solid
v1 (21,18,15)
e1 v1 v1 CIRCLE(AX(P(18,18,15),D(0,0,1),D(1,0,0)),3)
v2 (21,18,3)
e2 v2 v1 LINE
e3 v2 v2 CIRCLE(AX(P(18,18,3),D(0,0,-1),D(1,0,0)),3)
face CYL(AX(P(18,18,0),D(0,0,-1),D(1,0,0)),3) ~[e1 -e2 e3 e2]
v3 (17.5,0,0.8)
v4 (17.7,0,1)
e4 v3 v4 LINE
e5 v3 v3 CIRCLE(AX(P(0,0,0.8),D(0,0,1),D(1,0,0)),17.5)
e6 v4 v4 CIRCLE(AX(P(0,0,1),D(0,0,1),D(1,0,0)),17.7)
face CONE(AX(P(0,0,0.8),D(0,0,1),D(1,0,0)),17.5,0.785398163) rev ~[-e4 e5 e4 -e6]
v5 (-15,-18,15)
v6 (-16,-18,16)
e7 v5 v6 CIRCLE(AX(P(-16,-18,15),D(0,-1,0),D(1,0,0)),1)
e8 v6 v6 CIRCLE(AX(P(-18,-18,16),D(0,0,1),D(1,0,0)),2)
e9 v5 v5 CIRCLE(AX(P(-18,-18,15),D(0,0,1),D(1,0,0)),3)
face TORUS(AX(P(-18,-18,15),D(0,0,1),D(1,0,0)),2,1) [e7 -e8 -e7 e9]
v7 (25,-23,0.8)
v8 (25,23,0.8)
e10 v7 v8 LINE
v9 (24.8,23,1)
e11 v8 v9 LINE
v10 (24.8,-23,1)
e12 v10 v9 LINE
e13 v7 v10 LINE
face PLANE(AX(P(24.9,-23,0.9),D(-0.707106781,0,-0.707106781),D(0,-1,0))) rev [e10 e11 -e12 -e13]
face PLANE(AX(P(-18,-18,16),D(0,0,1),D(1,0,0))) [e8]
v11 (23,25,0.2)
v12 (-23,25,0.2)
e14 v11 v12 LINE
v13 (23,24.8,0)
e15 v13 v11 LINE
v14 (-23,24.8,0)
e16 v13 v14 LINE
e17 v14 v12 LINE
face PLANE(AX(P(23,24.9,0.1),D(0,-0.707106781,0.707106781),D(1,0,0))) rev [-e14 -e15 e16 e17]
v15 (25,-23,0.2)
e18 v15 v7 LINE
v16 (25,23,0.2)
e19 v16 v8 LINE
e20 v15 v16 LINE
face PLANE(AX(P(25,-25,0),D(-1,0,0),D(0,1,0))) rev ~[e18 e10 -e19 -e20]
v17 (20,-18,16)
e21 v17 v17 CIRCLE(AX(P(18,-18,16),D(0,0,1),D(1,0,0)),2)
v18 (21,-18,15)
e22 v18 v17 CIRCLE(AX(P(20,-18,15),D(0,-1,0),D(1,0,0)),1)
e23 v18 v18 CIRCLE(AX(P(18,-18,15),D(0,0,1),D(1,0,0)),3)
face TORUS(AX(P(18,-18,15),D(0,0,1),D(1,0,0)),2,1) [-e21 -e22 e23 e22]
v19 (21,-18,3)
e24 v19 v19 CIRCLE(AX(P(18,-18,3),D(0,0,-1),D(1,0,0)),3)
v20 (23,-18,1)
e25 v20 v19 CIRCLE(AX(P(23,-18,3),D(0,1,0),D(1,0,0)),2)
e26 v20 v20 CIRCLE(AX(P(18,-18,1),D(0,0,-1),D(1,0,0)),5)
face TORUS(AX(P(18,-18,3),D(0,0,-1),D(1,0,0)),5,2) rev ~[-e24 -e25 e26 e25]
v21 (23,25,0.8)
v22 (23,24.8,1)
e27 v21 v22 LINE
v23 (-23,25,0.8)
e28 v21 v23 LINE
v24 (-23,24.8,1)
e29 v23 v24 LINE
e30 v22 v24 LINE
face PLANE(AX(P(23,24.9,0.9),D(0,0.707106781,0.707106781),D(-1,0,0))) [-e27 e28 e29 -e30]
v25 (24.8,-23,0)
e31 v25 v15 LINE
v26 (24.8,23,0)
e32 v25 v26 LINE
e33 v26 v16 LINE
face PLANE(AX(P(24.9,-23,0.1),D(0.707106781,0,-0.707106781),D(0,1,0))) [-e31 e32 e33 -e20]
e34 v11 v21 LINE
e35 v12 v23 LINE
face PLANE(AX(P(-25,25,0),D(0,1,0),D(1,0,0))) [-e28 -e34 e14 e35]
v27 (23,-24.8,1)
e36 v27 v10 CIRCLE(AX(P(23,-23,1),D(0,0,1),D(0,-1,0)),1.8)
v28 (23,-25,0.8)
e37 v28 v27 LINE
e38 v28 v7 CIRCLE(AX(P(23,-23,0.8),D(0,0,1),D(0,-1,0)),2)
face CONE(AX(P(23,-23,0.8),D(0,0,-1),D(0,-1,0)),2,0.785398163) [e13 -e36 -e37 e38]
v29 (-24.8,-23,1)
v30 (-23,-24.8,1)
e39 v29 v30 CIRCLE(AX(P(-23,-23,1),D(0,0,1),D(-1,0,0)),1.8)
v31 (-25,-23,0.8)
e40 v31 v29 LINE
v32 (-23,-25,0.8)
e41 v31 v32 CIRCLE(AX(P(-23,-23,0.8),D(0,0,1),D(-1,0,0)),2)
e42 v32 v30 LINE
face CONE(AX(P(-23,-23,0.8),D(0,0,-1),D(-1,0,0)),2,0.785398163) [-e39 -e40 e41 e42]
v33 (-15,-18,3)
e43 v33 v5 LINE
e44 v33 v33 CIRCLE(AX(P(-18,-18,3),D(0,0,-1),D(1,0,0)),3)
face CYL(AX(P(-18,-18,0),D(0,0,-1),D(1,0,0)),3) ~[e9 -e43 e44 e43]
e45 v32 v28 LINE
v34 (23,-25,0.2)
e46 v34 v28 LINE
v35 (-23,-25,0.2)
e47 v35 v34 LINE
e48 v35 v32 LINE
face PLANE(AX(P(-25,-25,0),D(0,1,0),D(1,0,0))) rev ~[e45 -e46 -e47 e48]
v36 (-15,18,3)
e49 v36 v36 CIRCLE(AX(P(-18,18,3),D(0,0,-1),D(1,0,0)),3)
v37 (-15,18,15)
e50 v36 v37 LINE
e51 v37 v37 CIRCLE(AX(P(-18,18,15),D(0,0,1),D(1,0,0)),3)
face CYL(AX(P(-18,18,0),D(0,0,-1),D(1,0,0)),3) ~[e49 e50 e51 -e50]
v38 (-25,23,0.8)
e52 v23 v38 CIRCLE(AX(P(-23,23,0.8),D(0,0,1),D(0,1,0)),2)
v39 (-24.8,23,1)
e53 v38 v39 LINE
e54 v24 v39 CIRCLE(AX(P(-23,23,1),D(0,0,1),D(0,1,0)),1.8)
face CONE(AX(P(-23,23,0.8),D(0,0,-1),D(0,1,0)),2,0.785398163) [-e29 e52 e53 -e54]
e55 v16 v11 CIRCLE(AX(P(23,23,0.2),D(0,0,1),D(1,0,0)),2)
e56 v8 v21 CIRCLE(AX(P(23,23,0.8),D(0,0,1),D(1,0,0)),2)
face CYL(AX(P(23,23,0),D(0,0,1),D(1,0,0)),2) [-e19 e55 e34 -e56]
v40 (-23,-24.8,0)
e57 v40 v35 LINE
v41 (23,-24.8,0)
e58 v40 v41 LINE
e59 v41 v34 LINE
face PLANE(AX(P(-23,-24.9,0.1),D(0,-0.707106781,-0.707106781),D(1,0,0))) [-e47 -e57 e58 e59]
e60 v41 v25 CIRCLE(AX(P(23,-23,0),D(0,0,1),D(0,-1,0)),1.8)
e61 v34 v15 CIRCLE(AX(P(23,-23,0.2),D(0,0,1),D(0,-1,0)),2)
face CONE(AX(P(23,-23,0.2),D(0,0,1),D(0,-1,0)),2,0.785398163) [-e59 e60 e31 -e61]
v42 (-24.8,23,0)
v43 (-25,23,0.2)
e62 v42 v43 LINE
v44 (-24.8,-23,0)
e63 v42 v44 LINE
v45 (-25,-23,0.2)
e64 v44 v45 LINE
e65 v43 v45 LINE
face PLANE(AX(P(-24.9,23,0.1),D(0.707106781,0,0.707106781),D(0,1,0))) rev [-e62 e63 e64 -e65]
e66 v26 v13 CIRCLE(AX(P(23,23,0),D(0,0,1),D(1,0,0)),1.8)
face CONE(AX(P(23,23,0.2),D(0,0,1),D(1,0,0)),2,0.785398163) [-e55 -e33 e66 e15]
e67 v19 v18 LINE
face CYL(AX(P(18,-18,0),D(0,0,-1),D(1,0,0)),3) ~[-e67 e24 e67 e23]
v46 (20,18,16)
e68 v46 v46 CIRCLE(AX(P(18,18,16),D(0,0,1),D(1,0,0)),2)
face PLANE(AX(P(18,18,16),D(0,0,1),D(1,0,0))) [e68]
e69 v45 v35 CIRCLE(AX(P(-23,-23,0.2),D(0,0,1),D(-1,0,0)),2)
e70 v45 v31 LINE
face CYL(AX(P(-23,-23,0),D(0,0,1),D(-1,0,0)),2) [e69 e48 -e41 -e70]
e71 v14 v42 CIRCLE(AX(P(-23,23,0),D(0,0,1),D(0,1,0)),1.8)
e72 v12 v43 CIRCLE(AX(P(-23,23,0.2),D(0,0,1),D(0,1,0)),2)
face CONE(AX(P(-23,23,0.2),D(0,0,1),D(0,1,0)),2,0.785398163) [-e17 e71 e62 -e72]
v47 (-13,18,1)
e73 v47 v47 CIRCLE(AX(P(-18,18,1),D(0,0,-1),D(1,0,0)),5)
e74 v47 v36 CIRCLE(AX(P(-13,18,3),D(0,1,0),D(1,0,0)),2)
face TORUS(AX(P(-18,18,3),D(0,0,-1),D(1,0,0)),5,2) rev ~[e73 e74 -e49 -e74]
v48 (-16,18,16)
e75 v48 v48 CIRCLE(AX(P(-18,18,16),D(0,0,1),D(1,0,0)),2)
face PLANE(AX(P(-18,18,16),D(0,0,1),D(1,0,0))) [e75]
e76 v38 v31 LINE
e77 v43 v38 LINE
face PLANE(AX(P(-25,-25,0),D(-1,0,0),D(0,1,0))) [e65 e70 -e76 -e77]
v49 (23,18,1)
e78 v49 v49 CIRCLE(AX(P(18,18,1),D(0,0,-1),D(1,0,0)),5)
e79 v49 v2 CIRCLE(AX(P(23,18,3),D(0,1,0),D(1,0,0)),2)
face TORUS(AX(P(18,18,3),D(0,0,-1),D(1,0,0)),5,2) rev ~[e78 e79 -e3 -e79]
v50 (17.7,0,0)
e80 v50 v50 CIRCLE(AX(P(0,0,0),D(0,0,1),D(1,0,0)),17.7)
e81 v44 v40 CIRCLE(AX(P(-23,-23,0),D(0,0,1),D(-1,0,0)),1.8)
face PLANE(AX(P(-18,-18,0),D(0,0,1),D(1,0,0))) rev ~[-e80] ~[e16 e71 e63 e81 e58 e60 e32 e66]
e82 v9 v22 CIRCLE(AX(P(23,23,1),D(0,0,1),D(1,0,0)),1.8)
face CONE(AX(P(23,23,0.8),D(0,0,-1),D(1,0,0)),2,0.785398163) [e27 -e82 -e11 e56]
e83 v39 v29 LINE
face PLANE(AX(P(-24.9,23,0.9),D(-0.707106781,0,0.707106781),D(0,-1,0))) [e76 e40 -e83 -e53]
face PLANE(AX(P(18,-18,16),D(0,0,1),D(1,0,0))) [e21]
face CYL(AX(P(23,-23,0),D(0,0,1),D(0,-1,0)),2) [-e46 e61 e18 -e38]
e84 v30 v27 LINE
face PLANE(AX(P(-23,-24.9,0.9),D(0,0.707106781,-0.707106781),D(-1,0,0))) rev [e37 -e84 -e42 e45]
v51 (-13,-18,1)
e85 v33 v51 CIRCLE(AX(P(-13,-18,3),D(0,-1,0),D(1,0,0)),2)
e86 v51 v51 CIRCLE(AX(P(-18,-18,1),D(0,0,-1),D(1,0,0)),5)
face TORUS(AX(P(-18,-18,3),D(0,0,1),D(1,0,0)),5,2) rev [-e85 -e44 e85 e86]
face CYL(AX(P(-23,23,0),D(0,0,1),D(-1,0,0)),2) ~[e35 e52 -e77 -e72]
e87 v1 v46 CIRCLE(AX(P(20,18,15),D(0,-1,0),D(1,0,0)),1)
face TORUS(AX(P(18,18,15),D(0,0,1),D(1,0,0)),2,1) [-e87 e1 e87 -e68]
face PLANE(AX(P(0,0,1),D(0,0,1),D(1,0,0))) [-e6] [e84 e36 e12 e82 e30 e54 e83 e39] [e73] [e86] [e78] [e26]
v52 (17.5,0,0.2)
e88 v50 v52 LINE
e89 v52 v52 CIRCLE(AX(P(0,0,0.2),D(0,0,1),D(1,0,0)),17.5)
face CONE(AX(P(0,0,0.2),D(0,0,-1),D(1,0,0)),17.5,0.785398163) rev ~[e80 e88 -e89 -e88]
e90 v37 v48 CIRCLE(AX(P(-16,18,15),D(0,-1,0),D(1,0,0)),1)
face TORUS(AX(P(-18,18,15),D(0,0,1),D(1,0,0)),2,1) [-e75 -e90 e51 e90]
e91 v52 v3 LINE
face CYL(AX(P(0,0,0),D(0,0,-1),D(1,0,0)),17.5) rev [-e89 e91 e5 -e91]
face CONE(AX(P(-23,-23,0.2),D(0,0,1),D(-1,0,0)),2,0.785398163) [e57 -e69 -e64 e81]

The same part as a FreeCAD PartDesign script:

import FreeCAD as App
import Part
import Sketcher
from FreeCAD import Vector
Q = App.Units.Quantity


def edges_at(feature, points):
    """Names of the edges that pass closest to the given points."""
    edges = feature.Shape.Edges
    near = lambda p: min(range(len(edges)), key=lambda i: edges[i].distToShape(Part.Vertex(*p))[0])
    return sorted({f"Edge{near(p) + 1}" for p in points})

doc = App.newDocument("Part")
params = doc.addObject("Spreadsheet::Sheet", "Params")
for row, (alias, value) in enumerate([
    ("sketch1_diameter", "35 mm"),
    ("sketch1_width", "50 mm"),
    ("pad1_length", "1 mm"),
    ("fillet_radius", "2 mm"),
    ("sketch2_diameter", "6 mm"),
    ("pad2_length", "16 mm"),
    ("chamfer_size", "0.2 mm"),
    ("fillet2_radius", "1 mm"),
    ("fillet3_radius", "2 mm"),
], start=1):
    params.set(f"A{row}", alias)
    params.set(f"B{row}", "=" + value)
    params.setAlias(f"B{row}", alias)

body = doc.addObject("PartDesign::Body", "Body")

# Sketch on XY plane
sketch1 = body.newObject("Sketcher::SketchObject", "Sketch")
sketch1.AttachmentSupport = (doc.getObject("XY_Plane"), [""])
sketch1.MapMode = "FlatFace"
sketch1.addGeometry([
    Part.LineSegment(Vector(-25, 25, 0), Vector(-25, -25, 0)),  # 0
    Part.LineSegment(Vector(-25, -25, 0), Vector(25, -25, 0)),  # 1
    Part.LineSegment(Vector(25, -25, 0), Vector(25, 25, 0)),  # 2
    Part.LineSegment(Vector(25, 25, 0), Vector(-25, 25, 0)),  # 3
    Part.Circle(Vector(0, 0, 0), Vector(0, 0, 1), 17.5),  # 4
], False)
sketch1.addConstraint([
    Sketcher.Constraint("Coincident", 0, 2, 1, 1),
    Sketcher.Constraint("Coincident", 1, 2, 2, 1),
    Sketcher.Constraint("Coincident", 2, 2, 3, 1),
    Sketcher.Constraint("Coincident", 3, 2, 0, 1),
    Sketcher.Constraint("Vertical", 0),
    Sketcher.Constraint("Horizontal", 1),
    Sketcher.Constraint("Vertical", 2),
    Sketcher.Constraint("Horizontal", 3),
    Sketcher.Constraint("Coincident", 4, 3, -1, 1),
    Sketcher.Constraint("Symmetric", 0, 2, 2, 2, -1, 1),
    Sketcher.Constraint("Equal", 3, 0),
    Sketcher.Constraint("Diameter", 4, Q("35 mm")),
    Sketcher.Constraint("DistanceX", 1, 1, 1, 2, Q("50 mm")),
])
sketch1.setExpression("Constraints[11]", "Params.sketch1_diameter")
sketch1.setExpression("Constraints[12]", "Params.sketch1_width")
pad1 = body.newObject("PartDesign::Pad", "Pad")
pad1.Profile = sketch1
pad1.setExpression("Length", "Params.pad1_length")
doc.recompute()

fillet = body.newObject("PartDesign::Fillet", "Fillet")
fillet.Base = (pad1, edges_at(pad1, [
    (-25, -25, 0.5),
    (25, -25, 0.5),
    (25, 25, 0.5),
    (-25, 25, 0.5),
]))
fillet.setExpression("Radius", "Params.fillet_radius")

# Sketch on XY plane
sketch2 = body.newObject("Sketcher::SketchObject", "Sketch001")
sketch2.AttachmentSupport = (doc.getObject("XY_Plane"), [""])
sketch2.MapMode = "FlatFace"
sketch2.addGeometry([
    Part.Circle(Vector(-18, -18, 0), Vector(0, 0, 1), 3),
    Part.Circle(Vector(-18, 18, 0), Vector(0, 0, 1), 3),
    Part.Circle(Vector(18, 18, 0), Vector(0, 0, 1), 3),
    Part.Circle(Vector(18, -18, 0), Vector(0, 0, 1), 3),
], False)
sketch2.addConstraint([
    Sketcher.Constraint("Equal", 0, 1),
    Sketcher.Constraint("Equal", 1, 2),
    Sketcher.Constraint("Equal", 2, 3),
    Sketcher.Constraint("Symmetric", 0, 3, 2, 3, -1, 1),
    Sketcher.Constraint("Symmetric", 1, 3, 3, 3, -1, 1),
    Sketcher.Constraint("Symmetric", 1, 3, 2, 3, -2),
    Sketcher.Constraint("Diameter", 0, Q("6 mm")),
    Sketcher.Constraint("DistanceX", 0, 3, -1, 1, Q("18 mm")),
    Sketcher.Constraint("DistanceY", 0, 3, -1, 1, Q("18 mm")),
])
sketch2.setExpression("Constraints[6]", "Params.sketch2_diameter")
pad2 = body.newObject("PartDesign::Pad", "Pad001")
pad2.Profile = sketch2
pad2.setExpression("Length", "Params.pad2_length")
doc.recompute()

chamfer = body.newObject("PartDesign::Chamfer", "Chamfer")
chamfer.Base = (pad2, edges_at(pad2, [
    (25, 0, 0),
    (24.414, 24.414, 0),
    (0, 25, 0),
    (-24.414, 24.414, 0),
    (-25, 0, 0),
    (-24.414, -24.414, 0),
    (0, -25, 0),
    (24.414, -24.414, 0),
    (-17.5, 0, 0),
    (-17.5, 0, 1),
    (25, 0, 1),
]))
chamfer.setExpression("Size", "Params.chamfer_size")
doc.recompute()

fillet2 = body.newObject("PartDesign::Fillet", "Fillet001")
fillet2.Base = (chamfer, edges_at(chamfer, [
    (15, -18, 16),
    (-21, -18, 16),
    (-21, 18, 16),
    (15, 18, 16),
]))
fillet2.setExpression("Radius", "Params.fillet2_radius")
doc.recompute()

fillet3 = body.newObject("PartDesign::Fillet", "Fillet002")
fillet3.Base = (fillet2, edges_at(fillet2, [
    (-21, -18, 1),
    (15, -18, 1),
    (-21, 18, 1),
    (15, 18, 1),
]))
fillet3.setExpression("Radius", "Params.fillet3_radius")

doc.recompute()
